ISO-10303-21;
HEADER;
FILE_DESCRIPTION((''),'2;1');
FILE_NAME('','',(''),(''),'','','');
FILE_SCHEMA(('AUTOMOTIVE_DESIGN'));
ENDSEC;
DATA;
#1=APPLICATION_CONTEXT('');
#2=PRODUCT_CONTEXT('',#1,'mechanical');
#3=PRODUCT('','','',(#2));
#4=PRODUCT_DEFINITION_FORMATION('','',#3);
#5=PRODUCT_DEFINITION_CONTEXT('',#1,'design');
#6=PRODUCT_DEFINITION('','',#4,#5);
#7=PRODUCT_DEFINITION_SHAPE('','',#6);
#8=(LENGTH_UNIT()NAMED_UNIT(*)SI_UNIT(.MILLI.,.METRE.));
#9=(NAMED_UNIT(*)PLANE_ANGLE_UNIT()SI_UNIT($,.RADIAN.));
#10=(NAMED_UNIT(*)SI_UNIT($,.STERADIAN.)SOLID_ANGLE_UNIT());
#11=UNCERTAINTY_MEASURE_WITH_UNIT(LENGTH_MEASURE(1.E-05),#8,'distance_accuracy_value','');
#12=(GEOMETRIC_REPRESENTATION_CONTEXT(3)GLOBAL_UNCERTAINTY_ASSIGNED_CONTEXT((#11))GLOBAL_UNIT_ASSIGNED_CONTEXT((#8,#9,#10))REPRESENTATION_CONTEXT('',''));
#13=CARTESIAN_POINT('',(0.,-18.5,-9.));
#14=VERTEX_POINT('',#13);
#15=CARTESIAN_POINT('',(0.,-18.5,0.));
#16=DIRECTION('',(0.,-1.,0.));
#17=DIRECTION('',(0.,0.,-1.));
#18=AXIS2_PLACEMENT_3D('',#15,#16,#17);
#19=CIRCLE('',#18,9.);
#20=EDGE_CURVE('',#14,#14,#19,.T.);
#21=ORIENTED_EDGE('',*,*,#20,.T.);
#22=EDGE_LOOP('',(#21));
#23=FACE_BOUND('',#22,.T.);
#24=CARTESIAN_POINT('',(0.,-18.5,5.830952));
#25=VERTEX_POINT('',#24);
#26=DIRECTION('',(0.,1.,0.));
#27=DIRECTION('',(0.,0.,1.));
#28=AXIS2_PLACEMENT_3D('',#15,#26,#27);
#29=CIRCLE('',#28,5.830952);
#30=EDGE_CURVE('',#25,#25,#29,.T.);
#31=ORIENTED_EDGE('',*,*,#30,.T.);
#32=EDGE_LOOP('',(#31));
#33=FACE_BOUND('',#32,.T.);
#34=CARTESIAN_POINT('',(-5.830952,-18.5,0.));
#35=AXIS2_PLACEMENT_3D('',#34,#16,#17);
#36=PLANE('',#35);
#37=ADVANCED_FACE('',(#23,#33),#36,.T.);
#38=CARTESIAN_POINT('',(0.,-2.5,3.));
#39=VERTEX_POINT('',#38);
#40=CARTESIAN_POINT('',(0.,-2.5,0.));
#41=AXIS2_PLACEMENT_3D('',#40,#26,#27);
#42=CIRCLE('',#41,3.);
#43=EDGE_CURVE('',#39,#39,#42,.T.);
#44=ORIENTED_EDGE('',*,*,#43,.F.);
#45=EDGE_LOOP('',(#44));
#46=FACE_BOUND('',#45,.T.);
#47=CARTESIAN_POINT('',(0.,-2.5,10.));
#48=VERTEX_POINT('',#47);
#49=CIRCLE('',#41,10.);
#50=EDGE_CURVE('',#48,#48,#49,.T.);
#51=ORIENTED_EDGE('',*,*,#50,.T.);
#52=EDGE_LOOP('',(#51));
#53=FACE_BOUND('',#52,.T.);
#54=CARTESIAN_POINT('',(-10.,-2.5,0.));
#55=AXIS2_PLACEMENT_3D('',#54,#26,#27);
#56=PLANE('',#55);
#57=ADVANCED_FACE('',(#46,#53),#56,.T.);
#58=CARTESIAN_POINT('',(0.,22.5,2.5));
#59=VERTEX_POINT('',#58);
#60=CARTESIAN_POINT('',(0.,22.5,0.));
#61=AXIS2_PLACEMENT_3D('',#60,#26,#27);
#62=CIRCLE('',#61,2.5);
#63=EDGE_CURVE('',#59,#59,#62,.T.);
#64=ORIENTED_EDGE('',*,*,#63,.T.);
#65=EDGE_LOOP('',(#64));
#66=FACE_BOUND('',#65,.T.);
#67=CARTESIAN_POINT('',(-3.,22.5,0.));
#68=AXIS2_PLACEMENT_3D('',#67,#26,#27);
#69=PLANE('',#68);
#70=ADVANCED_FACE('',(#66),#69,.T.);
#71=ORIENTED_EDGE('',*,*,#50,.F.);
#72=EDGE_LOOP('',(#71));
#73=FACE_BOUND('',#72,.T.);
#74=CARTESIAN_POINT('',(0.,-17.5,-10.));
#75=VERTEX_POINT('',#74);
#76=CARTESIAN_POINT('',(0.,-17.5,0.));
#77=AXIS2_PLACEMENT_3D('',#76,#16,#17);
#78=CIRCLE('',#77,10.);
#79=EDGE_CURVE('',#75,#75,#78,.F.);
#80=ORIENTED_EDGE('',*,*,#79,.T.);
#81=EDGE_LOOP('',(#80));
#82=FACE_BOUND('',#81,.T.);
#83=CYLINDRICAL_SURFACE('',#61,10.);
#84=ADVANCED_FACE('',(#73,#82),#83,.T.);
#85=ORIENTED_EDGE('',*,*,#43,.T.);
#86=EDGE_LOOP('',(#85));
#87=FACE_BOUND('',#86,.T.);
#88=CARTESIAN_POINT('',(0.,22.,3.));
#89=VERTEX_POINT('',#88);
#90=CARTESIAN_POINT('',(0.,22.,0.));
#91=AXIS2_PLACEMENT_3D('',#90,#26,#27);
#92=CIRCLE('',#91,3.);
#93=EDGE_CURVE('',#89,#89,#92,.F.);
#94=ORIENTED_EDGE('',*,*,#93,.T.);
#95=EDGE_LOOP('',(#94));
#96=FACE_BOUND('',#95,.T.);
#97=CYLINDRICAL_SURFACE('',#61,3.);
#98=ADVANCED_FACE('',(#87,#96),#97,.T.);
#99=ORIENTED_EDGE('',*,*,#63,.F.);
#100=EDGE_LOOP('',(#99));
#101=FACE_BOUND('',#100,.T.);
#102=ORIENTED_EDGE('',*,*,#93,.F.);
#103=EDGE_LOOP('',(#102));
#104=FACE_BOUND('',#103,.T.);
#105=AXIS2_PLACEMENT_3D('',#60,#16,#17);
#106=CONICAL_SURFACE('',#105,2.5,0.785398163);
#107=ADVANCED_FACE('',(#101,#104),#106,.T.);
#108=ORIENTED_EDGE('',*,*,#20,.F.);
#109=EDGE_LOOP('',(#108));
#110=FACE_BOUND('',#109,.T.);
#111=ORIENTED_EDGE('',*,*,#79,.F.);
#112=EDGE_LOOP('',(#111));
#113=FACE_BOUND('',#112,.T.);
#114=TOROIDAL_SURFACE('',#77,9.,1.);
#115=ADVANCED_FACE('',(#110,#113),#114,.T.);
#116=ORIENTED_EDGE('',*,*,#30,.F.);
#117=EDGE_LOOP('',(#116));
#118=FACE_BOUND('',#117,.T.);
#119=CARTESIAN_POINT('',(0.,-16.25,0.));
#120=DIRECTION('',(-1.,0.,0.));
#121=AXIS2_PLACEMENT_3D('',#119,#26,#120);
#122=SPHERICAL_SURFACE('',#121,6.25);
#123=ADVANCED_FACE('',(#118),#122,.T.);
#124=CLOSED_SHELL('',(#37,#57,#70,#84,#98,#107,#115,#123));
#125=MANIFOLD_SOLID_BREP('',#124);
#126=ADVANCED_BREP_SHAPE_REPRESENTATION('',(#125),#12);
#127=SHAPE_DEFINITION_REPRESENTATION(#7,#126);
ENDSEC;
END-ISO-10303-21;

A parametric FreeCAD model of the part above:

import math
import FreeCAD as App
import Part
import Sketcher
Q = App.Units.Quantity


def edges_at(feature, points):
    """Names of the edges that pass closest to the given points."""
    edges = feature.Shape.Edges
    near = lambda p: min(range(len(edges)), key=lambda i: edges[i].distToShape(Part.Vertex(*p))[0])
    return sorted({f"Edge{near(p) + 1}" for p in points})

doc = App.newDocument("Part")
body = doc.addObject("PartDesign::Body", "Body")

# Sketch on XY plane
sketch1 = body.newObject("Sketcher::SketchObject", "Sketch")
sketch1.AttachmentSupport = (doc.getObject("XY_Plane"), [""])
sketch1.MapMode = "FlatFace"
sketch1.addGeometry([
    Part.LineSegment(App.Vector(-10, -18.5, 0), App.Vector(-5.8, -18.5, 0)),  # 0
    Part.ArcOfCircle(Part.Circle(App.Vector(0, -16.2, 0), App.Vector(0, 0, 1), 6.2), math.radians(-159), math.radians(-90)),  # 1
    Part.LineSegment(App.Vector(0, -22.5, 0), App.Vector(0, 22.5, 0)),  # 2
    Part.LineSegment(App.Vector(0, 22.5, 0), App.Vector(-3, 22.5, 0)),  # 3
    Part.LineSegment(App.Vector(-3, 22.5, 0), App.Vector(-3, -2.5, 0)),  # 4
    Part.LineSegment(App.Vector(-3, -2.5, 0), App.Vector(-10, -2.5, 0)),  # 5
    Part.LineSegment(App.Vector(-10, -2.5, 0), App.Vector(-10, -18.5, 0)),  # 6
], False)
sketch1.addConstraint([
    Sketcher.Constraint("Coincident", 0, 2, 1, 1),
    Sketcher.Constraint("Coincident", 1, 2, 2, 1),
    Sketcher.Constraint("Coincident", 2, 2, 3, 1),
    Sketcher.Constraint("Coincident", 3, 2, 4, 1),
    Sketcher.Constraint("Coincident", 4, 2, 5, 1),
    Sketcher.Constraint("Coincident", 5, 2, 6, 1),
    Sketcher.Constraint("Coincident", 6, 2, 0, 1),
    Sketcher.Constraint("Horizontal", 0),
    Sketcher.Constraint("Vertical", 2),
    Sketcher.Constraint("Horizontal", 3),
    Sketcher.Constraint("Vertical", 4),
    Sketcher.Constraint("Horizontal", 5),
    Sketcher.Constraint("Vertical", 6),
    Sketcher.Constraint("Symmetric", 1, 2, 2, 2, -1, 1),
    Sketcher.Constraint("PointOnObject", 1, 3, -2),
    Sketcher.Constraint("DistanceX", 3, 2, 3, 1, Q("3 mm")),
    Sketcher.Constraint("DistanceX", 5, 2, 5, 1, Q("7 mm")),
    Sketcher.Constraint("DistanceY", 2, 1, 2, 2, Q("45 mm")),
    Sketcher.Constraint("DistanceY", 4, 2, 4, 1, Q("25 mm")),
    Sketcher.Constraint("DistanceY", 6, 2, 6, 1, Q("16 mm")),
    Sketcher.Constraint("Radius", 1, Q("6.25 mm")),
])
revolution = body.newObject("PartDesign::Revolution", "Revolution")
revolution.Profile = sketch1
revolution.ReferenceAxis = (sketch1, ["V_Axis"])
revolution.Angle = 360
doc.recompute()

chamfer = body.newObject("PartDesign::Chamfer", "Chamfer")
chamfer.Base = (revolution, edges_at(revolution, [(3, 22.5, 0)]))
chamfer.Size = 0.5
doc.recompute()

fillet = body.newObject("PartDesign::Fillet", "Fillet")
fillet.Base = (chamfer, edges_at(chamfer, [(10, -18.5, 0)]))
fillet.Radius = 1

doc.recompute()
